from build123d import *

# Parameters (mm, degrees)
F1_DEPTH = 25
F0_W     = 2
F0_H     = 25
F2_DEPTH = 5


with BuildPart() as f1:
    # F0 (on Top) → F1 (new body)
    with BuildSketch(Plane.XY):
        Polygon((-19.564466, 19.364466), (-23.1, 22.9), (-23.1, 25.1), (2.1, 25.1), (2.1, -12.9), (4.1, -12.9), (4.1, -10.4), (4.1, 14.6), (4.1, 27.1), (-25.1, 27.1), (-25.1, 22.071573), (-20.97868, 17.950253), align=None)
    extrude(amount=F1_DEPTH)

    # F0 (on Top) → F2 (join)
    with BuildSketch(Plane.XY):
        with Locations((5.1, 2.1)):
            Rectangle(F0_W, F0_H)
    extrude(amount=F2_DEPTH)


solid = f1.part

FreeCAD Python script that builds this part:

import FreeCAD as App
import Part
import Sketcher
from FreeCAD import Vector
Q = App.Units.Quantity


def add_polygon(sketch, points):
    """Adds a closed chain of lines whose ends are joined by coincident constraints."""
    first, n = sketch.GeometryCount, len(points)
    for a, b in zip(points, points[1:] + points[:1]):
        sketch.addGeometry(Part.LineSegment(App.Vector(*a, 0), App.Vector(*b, 0)), False)
    for i in range(n):
        sketch.addConstraint(Sketcher.Constraint("Coincident", first + i, 2, first + (i + 1) % n, 1))

doc = App.newDocument("Part")
params = doc.addObject("Spreadsheet::Sheet", "Params")
for row, (alias, value) in enumerate([
    ("sketch1_width", "2 mm"),
    ("sketch1_height", "38 mm"),
    ("sketch1_height2", "40 mm"),
    ("sketch1_length", "5 mm"),
    ("sketch1_length2", "2 mm"),
    ("pad1_length", "25 mm"),
    ("sketch2_width", "2 mm"),
    ("sketch2_height", "25 mm"),
    ("pad2_length", "5 mm"),
], start=1):
    params.set(f"A{row}", alias)
    params.set(f"B{row}", "=" + value)
    params.setAlias(f"B{row}", alias)

body = doc.addObject("PartDesign::Body", "Body")

sketch1 = body.newObject("Sketcher::SketchObject", "Sketch")
sketch1.AttachmentSupport = (doc.getObject("XY_Plane"), [""])
sketch1.MapMode = "FlatFace"
add_polygon(sketch1, [(-19.6, 19.4), (-23.1, 22.9), (-23.1, 25.1), (2.1, 25.1), (2.1, -12.9), (4.1, -12.9), (4.1, 27.1), (-25.1, 27.1), (-25.1, 22.1), (-21, 18)])
sketch1.addConstraint([
    Sketcher.Constraint("Vertical", 1),
    Sketcher.Constraint("Horizontal", 2),
    Sketcher.Constraint("Vertical", 3),
    Sketcher.Constraint("Horizontal", 4),
    Sketcher.Constraint("Vertical", 5),
    Sketcher.Constraint("Horizontal", 6),
    Sketcher.Constraint("Vertical", 7),
    Sketcher.Constraint("Parallel", 0, 8),
    Sketcher.Constraint("Perpendicular", 8, 9),
    Sketcher.Constraint("DistanceX", 4, 1, 4, 2, Q("2 mm")),
    Sketcher.Constraint("DistanceY", 3, 2, 3, 1, Q("38 mm")),
    Sketcher.Constraint("DistanceY", 5, 1, 5, 2, Q("40 mm")),
    Sketcher.Constraint("Angle", 0, Q("135 deg")),
    Sketcher.Constraint("Distance", 0, Q("5 mm")),
    Sketcher.Constraint("Distance", 9, Q("2 mm")),
    Sketcher.Constraint("DistanceX", 2, 1, 2, 2, Q("25.2 mm")),
    Sketcher.Constraint("DistanceX", 6, 2, 6, 1, Q("29.2 mm")),
    Sketcher.Constraint("DistanceY", 1, 1, 1, 2, Q("2.2 mm")),
    Sketcher.Constraint("DistanceX", 0, 2, -1, 1, Q("23.1 mm")),
    Sketcher.Constraint("DistanceY", -1, 1, 0, 2, Q("22.9 mm")),
])
sketch1.setExpression("Constraints[19]", "Params.sketch1_width")
sketch1.setExpression("Constraints[20]", "Params.sketch1_height")
sketch1.setExpression("Constraints[21]", "Params.sketch1_height2")
sketch1.setExpression("Constraints[23]", "Params.sketch1_length")
sketch1.setExpression("Constraints[24]", "Params.sketch1_length2")
pad1 = body.newObject("PartDesign::Pad", "Pad")
pad1.Profile = sketch1
pad1.setExpression("Length", "Params.pad1_length")

sketch2 = body.newObject("Sketcher::SketchObject", "Sketch001")
sketch2.AttachmentSupport = (doc.getObject("XY_Plane"), [""])
sketch2.MapMode = "FlatFace"
add_polygon(sketch2, [(4.1, 14.6), (4.1, -10.4), (6.1, -10.4), (6.1, 14.6)])
sketch2.addConstraint([
    Sketcher.Constraint("Vertical", 0),
    Sketcher.Constraint("Horizontal", 1),
    Sketcher.Constraint("Vertical", 2),
    Sketcher.Constraint("Horizontal", 3),
    Sketcher.Constraint("DistanceX", 1, 1, 1, 2, Q("2 mm")),
    Sketcher.Constraint("DistanceY", 0, 2, 0, 1, Q("25 mm")),
    Sketcher.Constraint("DistanceX", -1, 1, 0, 2, Q("4.1 mm")),
    Sketcher.Constraint("DistanceY", 0, 2, -1, 1, Q("10.4 mm")),
])
sketch2.setExpression("Constraints[8]", "Params.sketch2_width")
sketch2.setExpression("Constraints[9]", "Params.sketch2_height")
pad2 = body.newObject("PartDesign::Pad", "Pad001")
pad2.Profile = sketch2
pad2.setExpression("Length", "Params.pad2_length")

doc.recompute()
